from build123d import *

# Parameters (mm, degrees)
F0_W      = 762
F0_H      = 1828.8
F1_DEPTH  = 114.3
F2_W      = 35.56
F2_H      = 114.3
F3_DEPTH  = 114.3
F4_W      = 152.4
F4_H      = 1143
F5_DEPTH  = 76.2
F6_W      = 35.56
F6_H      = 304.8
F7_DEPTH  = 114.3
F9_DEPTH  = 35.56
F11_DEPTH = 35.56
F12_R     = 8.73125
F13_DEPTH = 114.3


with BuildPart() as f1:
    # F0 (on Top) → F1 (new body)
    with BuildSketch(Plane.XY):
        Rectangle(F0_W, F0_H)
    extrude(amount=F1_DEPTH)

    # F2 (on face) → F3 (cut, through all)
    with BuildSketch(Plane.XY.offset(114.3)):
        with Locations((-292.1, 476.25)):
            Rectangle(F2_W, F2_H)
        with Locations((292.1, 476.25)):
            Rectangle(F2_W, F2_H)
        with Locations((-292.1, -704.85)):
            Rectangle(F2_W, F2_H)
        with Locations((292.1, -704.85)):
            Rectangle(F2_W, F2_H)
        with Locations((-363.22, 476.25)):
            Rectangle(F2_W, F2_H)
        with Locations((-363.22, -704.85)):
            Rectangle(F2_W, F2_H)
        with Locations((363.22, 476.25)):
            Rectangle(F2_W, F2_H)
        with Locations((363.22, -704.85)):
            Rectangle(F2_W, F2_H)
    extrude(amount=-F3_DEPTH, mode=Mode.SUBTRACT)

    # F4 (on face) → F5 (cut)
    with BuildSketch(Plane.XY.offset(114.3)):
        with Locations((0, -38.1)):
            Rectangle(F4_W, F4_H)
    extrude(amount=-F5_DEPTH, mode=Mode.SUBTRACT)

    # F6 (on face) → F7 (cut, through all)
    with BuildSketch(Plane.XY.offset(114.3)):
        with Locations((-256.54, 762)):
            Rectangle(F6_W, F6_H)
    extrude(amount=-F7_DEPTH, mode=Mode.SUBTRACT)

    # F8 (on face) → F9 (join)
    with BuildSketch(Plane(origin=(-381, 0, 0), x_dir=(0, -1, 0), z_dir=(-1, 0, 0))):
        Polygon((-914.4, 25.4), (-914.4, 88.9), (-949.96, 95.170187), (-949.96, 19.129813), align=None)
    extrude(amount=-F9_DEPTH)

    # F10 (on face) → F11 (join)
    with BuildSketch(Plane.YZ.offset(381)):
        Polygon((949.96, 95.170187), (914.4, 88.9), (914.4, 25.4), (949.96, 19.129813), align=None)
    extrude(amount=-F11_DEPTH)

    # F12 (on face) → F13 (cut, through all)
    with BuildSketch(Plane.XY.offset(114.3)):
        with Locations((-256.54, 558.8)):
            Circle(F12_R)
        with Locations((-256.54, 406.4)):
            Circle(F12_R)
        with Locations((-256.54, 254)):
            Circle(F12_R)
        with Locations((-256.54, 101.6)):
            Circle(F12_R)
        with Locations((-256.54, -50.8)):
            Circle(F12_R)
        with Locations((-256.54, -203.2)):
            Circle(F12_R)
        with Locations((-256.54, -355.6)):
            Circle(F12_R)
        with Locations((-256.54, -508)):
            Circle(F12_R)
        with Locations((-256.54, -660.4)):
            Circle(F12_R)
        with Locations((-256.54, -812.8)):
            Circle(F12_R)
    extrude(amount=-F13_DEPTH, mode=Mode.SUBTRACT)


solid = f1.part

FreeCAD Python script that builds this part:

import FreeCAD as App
import Part
import Sketcher
from FreeCAD import Vector
Q = App.Units.Quantity


def add_polygon(sketch, points):
    """Adds a closed chain of lines whose ends are joined by coincident constraints."""
    first, n = sketch.GeometryCount, len(points)
    for a, b in zip(points, points[1:] + points[:1]):
        sketch.addGeometry(Part.LineSegment(App.Vector(*a, 0), App.Vector(*b, 0)), False)
    for i in range(n):
        sketch.addConstraint(Sketcher.Constraint("Coincident", first + i, 2, first + (i + 1) % n, 1))

doc = App.newDocument("Part")
body = doc.addObject("PartDesign::Body", "Body")

# Sketch on XY plane
sketch1 = body.newObject("Sketcher::SketchObject", "Sketch")
sketch1.AttachmentSupport = (doc.getObject("XY_Plane"), [""])
sketch1.MapMode = "FlatFace"
add_polygon(sketch1, [(-381, 914), (-381, -914), (381, -914), (381, 914)])  # lines 0-3
sketch1.addConstraint([
    Sketcher.Constraint("Vertical", 0),
    Sketcher.Constraint("Horizontal", 1),
    Sketcher.Constraint("Vertical", 2),
    Sketcher.Constraint("Horizontal", 3),
    Sketcher.Constraint("Symmetric", 0, 2, 2, 2, -1, 1),
    Sketcher.Constraint("DistanceX", 1, 1, 1, 2, Q("30 in")),
    Sketcher.Constraint("DistanceY", 0, 2, 0, 1, Q("72 in")),
])
pad1 = body.newObject("PartDesign::Pad", "Pad")
pad1.Profile = sketch1
pad1.Length = Q("4.5 in")

# Sketch on XY plane
sketch2 = body.newObject("Sketcher::SketchObject", "Sketch001")
sketch2.AttachmentSupport = (doc.getObject("XY_Plane"), [""])
sketch2.MapMode = "FlatFace"
sketch2.AttachmentOffset = App.Placement(Vector(0, 0, 4.5 * 25.4), App.Rotation())
add_polygon(sketch2, [(-310, 533), (-310, 419), (-274, 419), (-274, 533)])  # lines 0-3
add_polygon(sketch2, [(274, 533), (274, 419), (310, 419), (310, 533)])  # lines 4-7
add_polygon(sketch2, [(-310, -648), (-310, -762), (-274, -762), (-274, -648)])  # lines 8-11
add_polygon(sketch2, [(274, -648), (274, -762), (310, -762), (310, -648)])  # lines 12-15
add_polygon(sketch2, [(-381, 533), (-381, 419), (-345, 419), (-345, 533)])  # lines 16-19
add_polygon(sketch2, [(-381, -648), (-381, -762), (-345, -762), (-345, -648)])  # lines 20-23
add_polygon(sketch2, [(345, 533), (345, 419), (381, 419), (381, 533)])  # lines 24-27
add_polygon(sketch2, [(345, -648), (345, -762), (381, -762), (381, -648)])  # lines 28-31
sketch2.addConstraint([
    Sketcher.Constraint("Vertical", 0),
    Sketcher.Constraint("Horizontal", 1),
    Sketcher.Constraint("Vertical", 2),
    Sketcher.Constraint("Horizontal", 3),
    Sketcher.Constraint("Vertical", 4),
    Sketcher.Constraint("Horizontal", 5),
    Sketcher.Constraint("Vertical", 6),
    Sketcher.Constraint("Horizontal", 7),
    Sketcher.Constraint("Vertical", 8),
    Sketcher.Constraint("Horizontal", 9),
    Sketcher.Constraint("Vertical", 10),
    Sketcher.Constraint("Horizontal", 11),
    Sketcher.Constraint("Vertical", 12),
    Sketcher.Constraint("Horizontal", 13),
    Sketcher.Constraint("Vertical", 14),
    Sketcher.Constraint("Horizontal", 15),
    Sketcher.Constraint("Vertical", 16),
    Sketcher.Constraint("Horizontal", 17),
    Sketcher.Constraint("Vertical", 18),
    Sketcher.Constraint("Horizontal", 19),
    Sketcher.Constraint("Vertical", 20),
    Sketcher.Constraint("Horizontal", 21),
    Sketcher.Constraint("Vertical", 22),
    Sketcher.Constraint("Horizontal", 23),
    Sketcher.Constraint("Vertical", 24),
    Sketcher.Constraint("Horizontal", 25),
    Sketcher.Constraint("Vertical", 26),
    Sketcher.Constraint("Horizontal", 27),
    Sketcher.Constraint("Vertical", 28),
    Sketcher.Constraint("Horizontal", 29),
    Sketcher.Constraint("Vertical", 30),
    Sketcher.Constraint("Horizontal", 31),
    Sketcher.Constraint("Symmetric", 1, 2, 4, 2, -2),
    Sketcher.Constraint("Symmetric", 3, 2, 6, 2, -2),
    Sketcher.Constraint("Symmetric", 9, 2, 12, 2, -2),
    Sketcher.Constraint("Symmetric", 11, 2, 14, 2, -2),
    Sketcher.Constraint("Symmetric", 17, 2, 24, 2, -2),
    Sketcher.Constraint("Symmetric", 19, 2, 26, 2, -2),
    Sketcher.Constraint("Symmetric", 21, 2, 28, 2, -2),
    Sketcher.Constraint("Symmetric", 23, 2, 30, 2, -2),
    Sketcher.Constraint("Horizontal", 5, 2, 16, 2),
    Sketcher.Constraint("Horizontal", 7, 2, 18, 2),
    Sketcher.Constraint("Horizontal", 13, 2, 20, 2),
    Sketcher.Constraint("Horizontal", 15, 2, 22, 2),
    Sketcher.Constraint("Vertical", 3, 2, 8, 2),
    Sketcher.Constraint("Vertical", 2, 2, 9, 2),
    Sketcher.Constraint("Vertical", 19, 2, 20, 2),
    Sketcher.Constraint("Vertical", 18, 2, 21, 2),
    Sketcher.Constraint("Equal", 15, 17),
    Sketcher.Constraint("Equal", 6, 8),
    Sketcher.Constraint("DistanceX", 1, 1, 1, 2, Q("1.4 in")),
    Sketcher.Constraint("DistanceY", 0, 2, 0, 1, Q("4.5 in")),
    Sketcher.Constraint("DistanceY", -1, 1, 2, 2, Q("21 in")),
    Sketcher.Constraint("DistanceY", 8, 2, -1, 1, Q("30 in")),
    Sketcher.Constraint("DistanceX", 16, 2, -1, 1, Q("15 in")),
    Sketcher.Constraint("DistanceX", 0, 2, 4, 2, Q("23 in")),
])
pocket1 = body.newObject("PartDesign::Pocket", "Pocket")
pocket1.Profile = sketch2
pocket1.Type = "ThroughAll"

# Sketch on XY plane
sketch3 = body.newObject("Sketcher::SketchObject", "Sketch002")
sketch3.AttachmentSupport = (doc.getObject("XY_Plane"), [""])
sketch3.MapMode = "FlatFace"
sketch3.AttachmentOffset = App.Placement(Vector(0, 0, 4.5 * 25.4), App.Rotation())
add_polygon(sketch3, [(-76, 533), (-76, -610), (76, -610), (76, 533)])  # lines 0-3
sketch3.addConstraint([
    Sketcher.Constraint("Vertical", 0),
    Sketcher.Constraint("Horizontal", 1),
    Sketcher.Constraint("Vertical", 2),
    Sketcher.Constraint("Horizontal", 3),
    Sketcher.Constraint("DistanceX", 1, 1, 1, 2, Q("6 in")),
    Sketcher.Constraint("DistanceY", 0, 2, 0, 1, Q("45 in")),
    Sketcher.Constraint("DistanceX", 0, 2, -1, 1, Q("3 in")),
    Sketcher.Constraint("DistanceY", 0, 2, -1, 1, Q("24 in")),
])
pocket2 = body.newObject("PartDesign::Pocket", "Pocket001")
pocket2.Profile = sketch3
pocket2.Length = Q("3 in")

# Sketch on XY plane
sketch4 = body.newObject("Sketcher::SketchObject", "Sketch003")
sketch4.AttachmentSupport = (doc.getObject("XY_Plane"), [""])
sketch4.MapMode = "FlatFace"
sketch4.AttachmentOffset = App.Placement(Vector(0, 0, 4.5 * 25.4), App.Rotation())
add_polygon(sketch4, [(-274, 914), (-274, 610), (-239, 610), (-239, 914)])  # lines 0-3
sketch4.addConstraint([
    Sketcher.Constraint("Vertical", 0),
    Sketcher.Constraint("Horizontal", 1),
    Sketcher.Constraint("Vertical", 2),
    Sketcher.Constraint("Horizontal", 3),
    Sketcher.Constraint("DistanceY", 0, 2, 0, 1, Q("12 in")),
    Sketcher.Constraint("DistanceX", 1, 1, 1, 2, Q("1.4 in")),
    Sketcher.Constraint("DistanceY", -1, 1, 0, 2, Q("24 in")),
    Sketcher.Constraint("DistanceX", 0, 2, -1, 1, Q("10.8 in")),
])
pocket3 = body.newObject("PartDesign::Pocket", "Pocket002")
pocket3.Profile = sketch4
pocket3.Type = "ThroughAll"

# Sketch on YZ plane
sketch5 = body.newObject("Sketcher::SketchObject", "Sketch004")
sketch5.AttachmentSupport = (doc.getObject("YZ_Plane"), [""])
sketch5.MapMode = "FlatFace"
sketch5.AttachmentOffset = App.Placement(Vector(0, 0, -15 * 25.4), App.Rotation())
add_polygon(sketch5, [(914, 25), (914, 89), (950, 95), (950, 19)])  # lines 0-3
sketch5.addConstraint([
    Sketcher.Constraint("Vertical", 0),
    Sketcher.Constraint("Vertical", 2),
    Sketcher.Constraint("Equal", 1, 3),
    Sketcher.Constraint("DistanceY", 0, 1, 0, 2, Q("2.5 in")),
    Sketcher.Constraint("DistanceX", -1, 1, 0, 2, Q("36 in")),
    Sketcher.Constraint("DistanceY", -1, 1, 3, 2, Q("1 in")),
    Sketcher.Constraint("Angle", 1, Q("9.999999 deg")),
    Sketcher.Constraint("DistanceX", -1, 1, 1, 2, Q("37.4 in")),
])
pad2 = body.newObject("PartDesign::Pad", "Pad001")
pad2.Profile = sketch5
pad2.Length = Q("1.4 in")

# Sketch on YZ plane
sketch6 = body.newObject("Sketcher::SketchObject", "Sketch005")
sketch6.AttachmentSupport = (doc.getObject("YZ_Plane"), [""])
sketch6.MapMode = "FlatFace"
sketch6.AttachmentOffset = App.Placement(Vector(0, 0, 15 * 25.4), App.Rotation())
add_polygon(sketch6, [(950, 95), (914, 89), (914, 25), (950, 19)])  # lines 0-3
sketch6.addConstraint([
    Sketcher.Constraint("Vertical", 1),
    Sketcher.Constraint("Vertical", 3),
    Sketcher.Constraint("Equal", 0, 2),
    Sketcher.Constraint("DistanceY", 1, 2, 1, 1, Q("2.5 in")),
    Sketcher.Constraint("DistanceX", -1, 1, 0, 2, Q("36 in")),
    Sketcher.Constraint("DistanceY", -1, 1, 1, 2, Q("1 in")),
    Sketcher.Constraint("Angle", 0, Q("-170.000001 deg")),
    Sketcher.Constraint("DistanceX", -1, 1, 2, 2, Q("37.4 in")),
])
pad3 = body.newObject("PartDesign::Pad", "Pad002")
pad3.Profile = sketch6
pad3.Length = Q("1.4 in")
pad3.Reversed = True

# Sketch on XY plane
sketch7 = body.newObject("Sketcher::SketchObject", "Sketch006")
sketch7.AttachmentSupport = (doc.getObject("XY_Plane"), [""])
sketch7.MapMode = "FlatFace"
sketch7.AttachmentOffset = App.Placement(Vector(0, 0, 4.5 * 25.4), App.Rotation())
sketch7.addGeometry([
    Part.Circle(Vector(-257, 559, 0), Vector(0, 0, 1), 9),  # 0
    Part.Circle(Vector(-257, 406, 0), Vector(0, 0, 1), 9),  # 1
    Part.Circle(Vector(-257, 254, 0), Vector(0, 0, 1), 9),  # 2
    Part.Circle(Vector(-257, 102, 0), Vector(0, 0, 1), 9),  # 3
    Part.Circle(Vector(-257, -51, 0), Vector(0, 0, 1), 9),  # 4
    Part.Circle(Vector(-257, -203, 0), Vector(0, 0, 1), 9),  # 5
    Part.Circle(Vector(-257, -356, 0), Vector(0, 0, 1), 9),  # 6
    Part.Circle(Vector(-257, -508, 0), Vector(0, 0, 1), 9),  # 7
    Part.Circle(Vector(-257, -660, 0), Vector(0, 0, 1), 9),  # 8
    Part.Circle(Vector(-257, -813, 0), Vector(0, 0, 1), 9),  # 9
], False)
sketch7.addConstraint([
    Sketcher.Constraint("Equal", 0, 1),
    Sketcher.Constraint("Equal", 1, 2),
    Sketcher.Constraint("Equal", 2, 3),
    Sketcher.Constraint("Equal", 3, 4),
    Sketcher.Constraint("Equal", 4, 5),
    Sketcher.Constraint("Equal", 5, 6),
    Sketcher.Constraint("Equal", 6, 7),
    Sketcher.Constraint("Equal", 7, 8),
    Sketcher.Constraint("Equal", 8, 9),
    Sketcher.Constraint("Vertical", 0, 3, 1, 3),
    Sketcher.Constraint("Vertical", 1, 3, 2, 3),
    Sketcher.Constraint("Vertical", 2, 3, 3, 3),
    Sketcher.Constraint("Vertical", 3, 3, 4, 3),
    Sketcher.Constraint("Vertical", 4, 3, 5, 3),
    Sketcher.Constraint("Vertical", 5, 3, 6, 3),
    Sketcher.Constraint("Vertical", 6, 3, 7, 3),
    Sketcher.Constraint("Vertical", 7, 3, 8, 3),
    Sketcher.Constraint("Vertical", 8, 3, 9, 3),
    Sketcher.Constraint("Diameter", 0, Q("0.6875 in")),
    Sketcher.Constraint("DistanceY", -1, 1, 0, 3, Q("22 in")),
    Sketcher.Constraint("DistanceY", -1, 1, 1, 3, Q("16 in")),
    Sketcher.Constraint("DistanceY", -1, 1, 2, 3, Q("10 in")),
    Sketcher.Constraint("DistanceY", -1, 1, 3, 3, Q("4 in")),
    Sketcher.Constraint("DistanceY", 4, 3, -1, 1, Q("2 in")),
    Sketcher.Constraint("DistanceY", 5, 3, -1, 1, Q("8 in")),
    Sketcher.Constraint("DistanceY", 6, 3, -1, 1, Q("14 in")),
    Sketcher.Constraint("DistanceY", 7, 3, -1, 1, Q("20 in")),
    Sketcher.Constraint("DistanceY", 8, 3, -1, 1, Q("26 in")),
    Sketcher.Constraint("DistanceY", 9, 3, -1, 1, Q("32 in")),
    Sketcher.Constraint("DistanceX", 0, 3, -1, 1, Q("10.1 in")),
])
pocket4 = body.newObject("PartDesign::Pocket", "Pocket003")
pocket4.Profile = sketch7
pocket4.Type = "ThroughAll"

doc.recompute()
